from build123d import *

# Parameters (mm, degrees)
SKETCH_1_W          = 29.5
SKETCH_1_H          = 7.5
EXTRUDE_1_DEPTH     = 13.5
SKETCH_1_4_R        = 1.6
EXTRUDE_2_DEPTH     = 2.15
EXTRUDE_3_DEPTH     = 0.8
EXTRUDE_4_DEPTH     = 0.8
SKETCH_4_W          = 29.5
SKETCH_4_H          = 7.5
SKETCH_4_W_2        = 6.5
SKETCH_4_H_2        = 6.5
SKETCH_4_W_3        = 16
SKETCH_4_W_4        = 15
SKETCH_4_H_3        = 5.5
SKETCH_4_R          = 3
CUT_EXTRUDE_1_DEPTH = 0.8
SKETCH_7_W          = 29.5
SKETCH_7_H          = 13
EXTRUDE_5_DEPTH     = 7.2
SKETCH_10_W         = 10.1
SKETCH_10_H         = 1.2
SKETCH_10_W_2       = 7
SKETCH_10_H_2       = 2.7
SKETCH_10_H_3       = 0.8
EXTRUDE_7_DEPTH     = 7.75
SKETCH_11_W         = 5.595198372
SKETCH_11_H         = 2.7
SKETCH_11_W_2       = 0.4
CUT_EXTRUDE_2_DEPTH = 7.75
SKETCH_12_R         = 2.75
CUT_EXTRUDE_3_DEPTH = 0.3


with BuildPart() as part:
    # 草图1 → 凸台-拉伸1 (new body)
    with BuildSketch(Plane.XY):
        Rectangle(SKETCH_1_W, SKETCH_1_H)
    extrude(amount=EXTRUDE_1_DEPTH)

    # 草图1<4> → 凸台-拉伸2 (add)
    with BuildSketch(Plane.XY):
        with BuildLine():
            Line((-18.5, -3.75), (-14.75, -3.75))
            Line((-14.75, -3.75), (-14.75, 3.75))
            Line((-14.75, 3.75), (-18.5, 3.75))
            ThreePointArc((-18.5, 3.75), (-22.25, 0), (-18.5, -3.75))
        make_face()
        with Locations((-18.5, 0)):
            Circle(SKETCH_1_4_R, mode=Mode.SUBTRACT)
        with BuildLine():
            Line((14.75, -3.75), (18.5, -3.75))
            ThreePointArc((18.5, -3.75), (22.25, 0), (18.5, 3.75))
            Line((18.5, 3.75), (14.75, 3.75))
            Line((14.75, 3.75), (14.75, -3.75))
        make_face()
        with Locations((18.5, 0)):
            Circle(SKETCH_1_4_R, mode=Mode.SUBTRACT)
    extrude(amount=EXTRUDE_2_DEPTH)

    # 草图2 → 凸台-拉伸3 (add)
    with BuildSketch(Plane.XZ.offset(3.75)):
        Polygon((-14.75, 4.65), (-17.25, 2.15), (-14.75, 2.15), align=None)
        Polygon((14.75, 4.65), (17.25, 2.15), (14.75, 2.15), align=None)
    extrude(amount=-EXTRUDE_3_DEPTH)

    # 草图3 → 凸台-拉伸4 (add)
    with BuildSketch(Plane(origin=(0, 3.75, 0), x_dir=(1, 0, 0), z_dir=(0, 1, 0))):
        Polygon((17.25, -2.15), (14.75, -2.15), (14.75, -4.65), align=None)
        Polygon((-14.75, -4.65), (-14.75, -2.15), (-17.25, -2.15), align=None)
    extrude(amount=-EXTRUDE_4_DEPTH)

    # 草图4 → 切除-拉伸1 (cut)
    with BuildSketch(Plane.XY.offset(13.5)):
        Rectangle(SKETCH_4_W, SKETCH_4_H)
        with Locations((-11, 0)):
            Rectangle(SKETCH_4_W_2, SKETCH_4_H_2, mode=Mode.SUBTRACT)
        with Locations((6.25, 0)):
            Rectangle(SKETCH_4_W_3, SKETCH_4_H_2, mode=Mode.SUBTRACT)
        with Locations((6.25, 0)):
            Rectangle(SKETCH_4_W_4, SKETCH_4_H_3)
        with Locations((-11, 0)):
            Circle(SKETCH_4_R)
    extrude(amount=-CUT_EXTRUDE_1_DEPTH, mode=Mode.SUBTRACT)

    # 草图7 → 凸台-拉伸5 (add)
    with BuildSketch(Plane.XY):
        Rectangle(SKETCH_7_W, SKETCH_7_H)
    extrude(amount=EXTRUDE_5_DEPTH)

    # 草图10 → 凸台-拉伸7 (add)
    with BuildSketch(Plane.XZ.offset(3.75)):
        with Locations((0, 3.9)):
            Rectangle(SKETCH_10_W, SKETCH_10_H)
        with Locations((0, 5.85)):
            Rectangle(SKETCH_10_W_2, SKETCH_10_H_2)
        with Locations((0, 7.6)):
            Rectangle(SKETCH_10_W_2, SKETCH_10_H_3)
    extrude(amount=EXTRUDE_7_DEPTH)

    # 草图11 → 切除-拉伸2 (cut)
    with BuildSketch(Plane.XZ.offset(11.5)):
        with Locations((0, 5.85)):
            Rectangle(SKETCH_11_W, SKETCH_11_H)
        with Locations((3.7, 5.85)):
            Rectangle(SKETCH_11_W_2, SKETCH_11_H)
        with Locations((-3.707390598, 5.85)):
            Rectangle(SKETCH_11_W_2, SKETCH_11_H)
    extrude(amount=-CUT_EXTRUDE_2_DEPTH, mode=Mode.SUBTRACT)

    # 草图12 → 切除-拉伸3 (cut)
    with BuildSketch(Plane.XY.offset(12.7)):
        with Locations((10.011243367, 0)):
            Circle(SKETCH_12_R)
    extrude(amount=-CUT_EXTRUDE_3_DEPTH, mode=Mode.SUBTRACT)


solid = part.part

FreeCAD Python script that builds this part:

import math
import FreeCAD as App
import Part
import Sketcher


def add_polygon(sketch, points):
    """Adds a closed chain of lines whose ends are joined by coincident constraints."""
    first, n = sketch.GeometryCount, len(points)
    for a, b in zip(points, points[1:] + points[:1]):
        sketch.addGeometry(Part.LineSegment(App.Vector(*a, 0), App.Vector(*b, 0)), False)
    for i in range(n):
        sketch.addConstraint(Sketcher.Constraint("Coincident", first + i, 2, first + (i + 1) % n, 1))

doc = App.newDocument("Part")
params = doc.addObject("Spreadsheet::Sheet", "Params")
for row, (alias, value) in enumerate([
    ("sketch1_width", "29.5 mm"),
    ("sketch1_height", "7.5 mm"),
    ("pad1_length", "13.5 mm"),
    ("sketch2_diameter", "3.2 mm"),
    ("sketch2_radius", "3.75 mm"),
    ("sketch2_width", "3.75 mm"),
    ("pad2_length", "2.15 mm"),
    ("sketch3_width", "2.5 mm"),
    ("pad3_length", "0.8 mm"),
    ("sketch4_width", "2.5 mm"),
    ("pad4_length", "0.8 mm"),
    ("sketch5_diameter", "6 mm"),
    ("sketch5_width", "16 mm"),
    ("sketch5_width2", "15 mm"),
    ("sketch5_width3", "29.5 mm"),
    ("sketch5_width4", "6.5 mm"),
    ("pocket1_length", "0.8 mm"),
    ("sketch6_height", "13 mm"),
    ("sketch6_width", "29.5 mm"),
    ("pad5_length", "7.2 mm"),
    ("sketch7_width", "7 mm"),
    ("sketch7_width2", "10.1 mm"),
    ("sketch7_height", "1.2 mm"),
    ("sketch7_height2", "3.5 mm"),
    ("pad6_length", "7.75 mm"),
    ("sketch8_width", "0.4 mm"),
    ("sketch8_height", "2.7 mm"),
    ("pocket2_length", "7.75 mm"),
    ("sketch9_diameter", "5.5 mm"),
    ("pocket3_length", "0.3 mm"),
], start=1):
    params.set(f"A{row}", alias)
    params.set(f"B{row}", "=" + value)
    params.setAlias(f"B{row}", alias)

body = doc.addObject("PartDesign::Body", "Body")

sketch1 = body.newObject("Sketcher::SketchObject", "Sketch")
sketch1.AttachmentSupport = (doc.getObject("XY_Plane"), [""])
sketch1.MapMode = "FlatFace"
add_polygon(sketch1, [(-15, 4), (-15, -4), (15, -4), (15, 4)])
sketch1.addConstraint(Sketcher.Constraint("Vertical", 0))
sketch1.addConstraint(Sketcher.Constraint("Horizontal", 1))
sketch1.addConstraint(Sketcher.Constraint("Vertical", 2))
sketch1.addConstraint(Sketcher.Constraint("Horizontal", 3))
sketch1.addConstraint(Sketcher.Constraint("Symmetric", 0, 2, 2, 2, -1, 1))
sketch1.addConstraint(Sketcher.Constraint("DistanceX", 1, 1, 1, 2, 29.5))
sketch1.addConstraint(Sketcher.Constraint("DistanceY", 0, 2, 0, 1, 7.5))
sketch1.setExpression("Constraints[9]", "Params.sketch1_width")
sketch1.setExpression("Constraints[10]", "Params.sketch1_height")
pad1 = body.newObject("PartDesign::Pad", "Pad")
pad1.Profile = sketch1
pad1.setExpression("Length", "Params.pad1_length")

sketch2 = body.newObject("Sketcher::SketchObject", "Sketch001")
sketch2.AttachmentSupport = (doc.getObject("XY_Plane"), [""])
sketch2.MapMode = "FlatFace"
sketch2.addGeometry(Part.LineSegment(App.Vector(-18.5, -3.8, 0), App.Vector(-14.8, -3.8, 0)), False)
sketch2.addGeometry(Part.LineSegment(App.Vector(-14.8, -3.8, 0), App.Vector(-14.8, 3.8, 0)), False)
sketch2.addGeometry(Part.LineSegment(App.Vector(-14.8, 3.8, 0), App.Vector(-18.5, 3.8, 0)), False)
sketch2.addGeometry(Part.ArcOfCircle(Part.Circle(App.Vector(-18.5, 0, 0), App.Vector(0, 0, 1), 3.8), math.radians(90), math.radians(270)), False)
sketch2.addGeometry(Part.Circle(App.Vector(-18.5, 0, 0), App.Vector(0, 0, 1), 1.6), False)
sketch2.addGeometry(Part.LineSegment(App.Vector(14.8, -3.8, 0), App.Vector(18.5, -3.8, 0)), False)
sketch2.addGeometry(Part.ArcOfCircle(Part.Circle(App.Vector(18.5, 0, 0), App.Vector(0, 0, 1), 3.8), math.radians(-90), math.radians(90)), False)
sketch2.addGeometry(Part.LineSegment(App.Vector(18.5, 3.8, 0), App.Vector(14.8, 3.8, 0)), False)
sketch2.addGeometry(Part.LineSegment(App.Vector(14.8, 3.8, 0), App.Vector(14.8, -3.8, 0)), False)
sketch2.addGeometry(Part.Circle(App.Vector(18.5, 0, 0), App.Vector(0, 0, 1), 1.6), False)
sketch2.addConstraint(Sketcher.Constraint("Coincident", 0, 2, 1, 1))
sketch2.addConstraint(Sketcher.Constraint("Coincident", 1, 2, 2, 1))
sketch2.addConstraint(Sketcher.Constraint("Tangent", 2, 2, 3, 1))
sketch2.addConstraint(Sketcher.Constraint("Tangent", 3, 2, 0, 1))
sketch2.addConstraint(Sketcher.Constraint("Tangent", 5, 2, 6, 1))
sketch2.addConstraint(Sketcher.Constraint("Tangent", 6, 2, 7, 1))
sketch2.addConstraint(Sketcher.Constraint("Coincident", 7, 2, 8, 1))
sketch2.addConstraint(Sketcher.Constraint("Coincident", 8, 2, 5, 1))
sketch2.addConstraint(Sketcher.Constraint("Horizontal", 0))
sketch2.addConstraint(Sketcher.Constraint("Vertical", 1))
sketch2.addConstraint(Sketcher.Constraint("Horizontal", 2))
sketch2.addConstraint(Sketcher.Constraint("Horizontal", 5))
sketch2.addConstraint(Sketcher.Constraint("Horizontal", 7))
sketch2.addConstraint(Sketcher.Constraint("Vertical", 8))
sketch2.addConstraint(Sketcher.Constraint("Coincident", 4, 3, 3, 3))
sketch2.addConstraint(Sketcher.Constraint("Coincident", 9, 3, 6, 3))
sketch2.addConstraint(Sketcher.Constraint("Equal", 3, 6))
sketch2.addConstraint(Sketcher.Constraint("Equal", 4, 9))
sketch2.addConstraint(Sketcher.Constraint("Symmetric", 3, 3, 6, 3, -1, 1))
sketch2.addConstraint(Sketcher.Constraint("Symmetric", 1, 2, 7, 2, -2))
sketch2.addConstraint(Sketcher.Constraint("Diameter", 4, 3.2))
sketch2.addConstraint(Sketcher.Constraint("Radius", 3, 3.75))
sketch2.addConstraint(Sketcher.Constraint("DistanceX", 3, 3, 6, 3, 37.0))
sketch2.addConstraint(Sketcher.Constraint("DistanceX", 0, 1, 0, 2, 3.75))
sketch2.setExpression("Constraints[20]", "Params.sketch2_diameter")
sketch2.setExpression("Constraints[21]", "Params.sketch2_radius")
sketch2.setExpression("Constraints[23]", "Params.sketch2_width")
pad2 = body.newObject("PartDesign::Pad", "Pad001")
pad2.Profile = sketch2
pad2.setExpression("Length", "Params.pad2_length")

sketch3 = body.newObject("Sketcher::SketchObject", "Sketch002")
sketch3.AttachmentSupport = (doc.getObject("XZ_Plane"), [""])
sketch3.MapMode = "FlatFace"
sketch3.AttachmentOffset = App.Placement(App.Vector(0, 0, 3.75), App.Rotation())
add_polygon(sketch3, [(-14.8, 4.7), (-17.2, 2.1), (-14.8, 2.1)])
add_polygon(sketch3, [(17.2, 2.1), (14.8, 4.7), (14.8, 2.1)])
sketch3.addConstraint(Sketcher.Constraint("Horizontal", 1))
sketch3.addConstraint(Sketcher.Constraint("Vertical", 2))
sketch3.addConstraint(Sketcher.Constraint("Vertical", 4))
sketch3.addConstraint(Sketcher.Constraint("Horizontal", 5))
sketch3.addConstraint(Sketcher.Constraint("Symmetric", 2, 2, 3, 2, -2))
sketch3.addConstraint(Sketcher.Constraint("Symmetric", 0, 2, 5, 2, -2))
sketch3.addConstraint(Sketcher.Constraint("Perpendicular", 0, 3))
sketch3.addConstraint(Sketcher.Constraint("DistanceX", 1, 1, 1, 2, 2.5))
sketch3.addConstraint(Sketcher.Constraint("DistanceX", 0, 2, 3, 2, 32.0))
sketch3.addConstraint(Sketcher.Constraint("DistanceY", -1, 1, 0, 2, 2.15))
sketch3.setExpression("Constraints[13]", "Params.sketch3_width")
pad3 = body.newObject("PartDesign::Pad", "Pad002")
pad3.Profile = sketch3
pad3.setExpression("Length", "Params.pad3_length")
pad3.Reversed = True

sketch4 = body.newObject("Sketcher::SketchObject", "Sketch003")
sketch4.AttachmentSupport = (doc.getObject("XZ_Plane"), [""])
sketch4.MapMode = "FlatFace"
sketch4.AttachmentOffset = App.Placement(App.Vector(0, 0, -3.75), App.Rotation())
add_polygon(sketch4, [(17.2, 2.1), (14.8, 2.1), (14.8, 4.7)])
add_polygon(sketch4, [(-14.8, 4.7), (-14.8, 2.1), (-17.2, 2.1)])
sketch4.addConstraint(Sketcher.Constraint("Horizontal", 0))
sketch4.addConstraint(Sketcher.Constraint("Vertical", 1))
sketch4.addConstraint(Sketcher.Constraint("Vertical", 3))
sketch4.addConstraint(Sketcher.Constraint("Horizontal", 4))
sketch4.addConstraint(Sketcher.Constraint("Symmetric", 0, 2, 3, 2, -2))
sketch4.addConstraint(Sketcher.Constraint("Perpendicular", 2, 5))
sketch4.addConstraint(Sketcher.Constraint("Horizontal", 1, 2, 5, 2))
sketch4.addConstraint(Sketcher.Constraint("Equal", 0, 4))
sketch4.addConstraint(Sketcher.Constraint("DistanceX", 0, 2, 0, 1, 2.5))
sketch4.addConstraint(Sketcher.Constraint("DistanceX", 3, 2, 2, 2, 32.0))
sketch4.addConstraint(Sketcher.Constraint("DistanceY", -1, 1, 0, 2, 2.15))
sketch4.setExpression("Constraints[14]", "Params.sketch4_width")
pad4 = body.newObject("PartDesign::Pad", "Pad003")
pad4.Profile = sketch4
pad4.setExpression("Length", "Params.pad4_length")

sketch5 = body.newObject("Sketcher::SketchObject", "Sketch004")
sketch5.AttachmentSupport = (doc.getObject("XY_Plane"), [""])
sketch5.MapMode = "FlatFace"
sketch5.AttachmentOffset = App.Placement(App.Vector(0, 0, 13.5), App.Rotation())
add_polygon(sketch5, [(-14.8, 3.8), (-14.8, -3.8), (14.8, -3.8), (14.8, 3.8)])
add_polygon(sketch5, [(-7.8, -3.2), (-14.2, -3.2), (-14.2, 3.2), (-7.8, 3.2)])
add_polygon(sketch5, [(14.2, -3.2), (-1.8, -3.2), (-1.8, 3.2), (14.2, 3.2)])
add_polygon(sketch5, [(-1.2, 2.8), (-1.2, -2.8), (13.8, -2.8), (13.8, 2.8)])
sketch5.addGeometry(Part.Circle(App.Vector(-11, 0, 0), App.Vector(0, 0, 1), 3), False)
sketch5.addConstraint(Sketcher.Constraint("Vertical", 0))
sketch5.addConstraint(Sketcher.Constraint("Horizontal", 1))
sketch5.addConstraint(Sketcher.Constraint("Vertical", 2))
sketch5.addConstraint(Sketcher.Constraint("Horizontal", 3))
sketch5.addConstraint(Sketcher.Constraint("Horizontal", 4))
sketch5.addConstraint(Sketcher.Constraint("Vertical", 5))
sketch5.addConstraint(Sketcher.Constraint("Horizontal", 6))
sketch5.addConstraint(Sketcher.Constraint("Vertical", 7))
sketch5.addConstraint(Sketcher.Constraint("Horizontal", 8))
sketch5.addConstraint(Sketcher.Constraint("Vertical", 9))
sketch5.addConstraint(Sketcher.Constraint("Horizontal", 10))
sketch5.addConstraint(Sketcher.Constraint("Vertical", 11))
sketch5.addConstraint(Sketcher.Constraint("Vertical", 12))
sketch5.addConstraint(Sketcher.Constraint("Horizontal", 13))
sketch5.addConstraint(Sketcher.Constraint("Vertical", 14))
sketch5.addConstraint(Sketcher.Constraint("Horizontal", 15))
sketch5.addConstraint(Sketcher.Constraint("Symmetric", 0, 2, 2, 2, -1, 1))
sketch5.addConstraint(Sketcher.Constraint("Symmetric", 4, 2, 10, 2, -1, 1))
sketch5.addConstraint(Sketcher.Constraint("PointOnObject", 16, 3, -1))
sketch5.addConstraint(Sketcher.Constraint("Horizontal", 7, 2, 8, 2))
sketch5.addConstraint(Sketcher.Constraint("Horizontal", 6, 2, 9, 2))
sketch5.addConstraint(Sketcher.Constraint("Equal", 6, 5))
sketch5.addConstraint(Sketcher.Constraint("Diameter", 16, 6.0))
sketch5.addConstraint(Sketcher.Constraint("DistanceX", 8, 2, 8, 1, 16.0))
sketch5.addConstraint(Sketcher.Constraint("DistanceX", 13, 1, 13, 2, 15.0))
sketch5.addConstraint(Sketcher.Constraint("DistanceX", 1, 1, 1, 2, 29.5))
sketch5.addConstraint(Sketcher.Constraint("DistanceX", 4, 2, 4, 1, 6.5))
sketch5.addConstraint(Sketcher.Constraint("DistanceY", 0, 2, 0, 1, 7.5))
sketch5.addConstraint(Sketcher.Constraint("DistanceY", 12, 2, 12, 1, 5.5))
sketch5.addConstraint(Sketcher.Constraint("DistanceX", 16, 3, -1, 1, 11.0))
sketch5.addConstraint(Sketcher.Constraint("DistanceX", 4, 2, 1, 2, 29.0))
sketch5.addConstraint(Sketcher.Constraint("DistanceY", 12, 2, 9, 2, 6.0))
sketch5.addConstraint(Sketcher.Constraint("DistanceX", 13, 2, 1, 2, 1.0))
sketch5.setExpression("Constraints[38]", "Params.sketch5_diameter")
sketch5.setExpression("Constraints[39]", "Params.sketch5_width")
sketch5.setExpression("Constraints[40]", "Params.sketch5_width2")
sketch5.setExpression("Constraints[41]", "Params.sketch5_width3")
sketch5.setExpression("Constraints[42]", "Params.sketch5_width4")
pocket1 = body.newObject("PartDesign::Pocket", "Pocket")
pocket1.Profile = sketch5
pocket1.setExpression("Length", "Params.pocket1_length")

sketch6 = body.newObject("Sketcher::SketchObject", "Sketch005")
sketch6.AttachmentSupport = (doc.getObject("XY_Plane"), [""])
sketch6.MapMode = "FlatFace"
add_polygon(sketch6, [(-15, 6), (-15, -6), (15, -6), (15, 6)])
sketch6.addConstraint(Sketcher.Constraint("Vertical", 0))
sketch6.addConstraint(Sketcher.Constraint("Horizontal", 1))
sketch6.addConstraint(Sketcher.Constraint("Vertical", 2))
sketch6.addConstraint(Sketcher.Constraint("Horizontal", 3))
sketch6.addConstraint(Sketcher.Constraint("Symmetric", 0, 2, 2, 2, -1, 1))
sketch6.addConstraint(Sketcher.Constraint("DistanceY", 0, 2, 0, 1, 13.0))
sketch6.addConstraint(Sketcher.Constraint("DistanceX", 1, 1, 1, 2, 29.5))
sketch6.setExpression("Constraints[9]", "Params.sketch6_height")
sketch6.setExpression("Constraints[10]", "Params.sketch6_width")
pad5 = body.newObject("PartDesign::Pad", "Pad004")
pad5.Profile = sketch6
pad5.setExpression("Length", "Params.pad5_length")

sketch7 = body.newObject("Sketcher::SketchObject", "Sketch006")
sketch7.AttachmentSupport = (doc.getObject("XZ_Plane"), [""])
sketch7.MapMode = "FlatFace"
sketch7.AttachmentOffset = App.Placement(App.Vector(0, 0, 3.75), App.Rotation())
add_polygon(sketch7, [(-5, 4.5), (-5, 3.3), (5, 3.3), (5, 4.5), (3.5, 4.5), (3.5, 8), (-3.5, 8), (-3.5, 4.5)])
sketch7.addConstraint(Sketcher.Constraint("Vertical", 0))
sketch7.addConstraint(Sketcher.Constraint("Horizontal", 1))
sketch7.addConstraint(Sketcher.Constraint("Vertical", 2))
sketch7.addConstraint(Sketcher.Constraint("Horizontal", 3))
sketch7.addConstraint(Sketcher.Constraint("Vertical", 4))
sketch7.addConstraint(Sketcher.Constraint("Horizontal", 5))
sketch7.addConstraint(Sketcher.Constraint("Vertical", 6))
sketch7.addConstraint(Sketcher.Constraint("Horizontal", 7))
sketch7.addConstraint(Sketcher.Constraint("Symmetric", 3, 2, 6, 2, -2))
sketch7.addConstraint(Sketcher.Constraint("Equal", 3, 7))
sketch7.addConstraint(Sketcher.Constraint("DistanceX", 5, 2, 5, 1, 7.0))
sketch7.addConstraint(Sketcher.Constraint("DistanceX", 1, 1, 1, 2, 10.1))
sketch7.addConstraint(Sketcher.Constraint("DistanceY", 0, 2, 0, 1, 1.2))
sketch7.addConstraint(Sketcher.Constraint("DistanceY", 4, 1, 4, 2, 3.5))
sketch7.addConstraint(Sketcher.Constraint("DistanceY", -1, 1, 4, 2, 8.0))
sketch7.setExpression("Constraints[18]", "Params.sketch7_width")
sketch7.setExpression("Constraints[19]", "Params.sketch7_width2")
sketch7.setExpression("Constraints[20]", "Params.sketch7_height")
sketch7.setExpression("Constraints[21]", "Params.sketch7_height2")
pad6 = body.newObject("PartDesign::Pad", "Pad005")
pad6.Profile = sketch7
pad6.setExpression("Length", "Params.pad6_length")

sketch8 = body.newObject("Sketcher::SketchObject", "Sketch007")
sketch8.AttachmentSupport = (doc.getObject("XZ_Plane"), [""])
sketch8.MapMode = "FlatFace"
sketch8.AttachmentOffset = App.Placement(App.Vector(0, 0, 11.5), App.Rotation())
add_polygon(sketch8, [(-2.8, 7.2), (-2.8, 4.5), (2.8, 4.5), (2.8, 7.2)])
add_polygon(sketch8, [(3.5, 7.2), (3.5, 4.5), (3.9, 4.5), (3.9, 7.2)])
add_polygon(sketch8, [(-3.91, 7.2), (-3.91, 4.5), (-3.51, 4.5), (-3.51, 7.2)])
sketch8.addConstraint(Sketcher.Constraint("Vertical", 0))
sketch8.addConstraint(Sketcher.Constraint("Horizontal", 1))
sketch8.addConstraint(Sketcher.Constraint("Vertical", 2))
sketch8.addConstraint(Sketcher.Constraint("Horizontal", 3))
sketch8.addConstraint(Sketcher.Constraint("Vertical", 4))
sketch8.addConstraint(Sketcher.Constraint("Horizontal", 5))
sketch8.addConstraint(Sketcher.Constraint("Vertical", 6))
sketch8.addConstraint(Sketcher.Constraint("Horizontal", 7))
sketch8.addConstraint(Sketcher.Constraint("Vertical", 8))
sketch8.addConstraint(Sketcher.Constraint("Horizontal", 9))
sketch8.addConstraint(Sketcher.Constraint("Vertical", 10))
sketch8.addConstraint(Sketcher.Constraint("Horizontal", 11))
sketch8.addConstraint(Sketcher.Constraint("Horizontal", 1, 2, 4, 2))
sketch8.addConstraint(Sketcher.Constraint("Horizontal", 3, 2, 6, 2))
sketch8.addConstraint(Sketcher.Constraint("Horizontal", 5, 2, 8, 2))
sketch8.addConstraint(Sketcher.Constraint("Horizontal", 7, 2, 10, 2))
sketch8.addConstraint(Sketcher.Constraint("Equal", 7, 9))
sketch8.addConstraint(Sketcher.Constraint("DistanceX", 5, 1, 5, 2, 0.4))
sketch8.addConstraint(Sketcher.Constraint("DistanceY", 0, 2, 0, 1, 2.7))
sketch8.addConstraint(Sketcher.Constraint("DistanceY", -1, 1, 0, 2, 4.5))
sketch8.addConstraint(Sketcher.Constraint("DistanceX", -1, 1, 4, 2, 3.5))
sketch8.addConstraint(Sketcher.Constraint("DistanceX", 1, 1, 1, 2, 5.595198))
sketch8.addConstraint(Sketcher.Constraint("DistanceX", 0, 2, -1, 1, 2.797599))
sketch8.addConstraint(Sketcher.Constraint("DistanceX", 8, 2, -1, 1, 3.907391))
sketch8.setExpression("Constraints[29]", "Params.sketch8_width")
sketch8.setExpression("Constraints[30]", "Params.sketch8_height")
pocket2 = body.newObject("PartDesign::Pocket", "Pocket001")
pocket2.Profile = sketch8
pocket2.setExpression("Length", "Params.pocket2_length")

sketch9 = body.newObject("Sketcher::SketchObject", "Sketch008")
sketch9.AttachmentSupport = (doc.getObject("XY_Plane"), [""])
sketch9.MapMode = "FlatFace"
sketch9.AttachmentOffset = App.Placement(App.Vector(0, 0, 12.7), App.Rotation())
sketch9.addGeometry(Part.Circle(App.Vector(10, 0, 0), App.Vector(0, 0, 1), 2.8), False)
sketch9.addConstraint(Sketcher.Constraint("PointOnObject", 0, 3, -1))
sketch9.addConstraint(Sketcher.Constraint("Diameter", 0, 5.5))
sketch9.addConstraint(Sketcher.Constraint("DistanceX", -1, 1, 0, 3, 10.011243))
sketch9.setExpression("Constraints[1]", "Params.sketch9_diameter")
pocket3 = body.newObject("PartDesign::Pocket", "Pocket002")
pocket3.Profile = sketch9
pocket3.setExpression("Length", "Params.pocket3_length")

doc.recompute()
